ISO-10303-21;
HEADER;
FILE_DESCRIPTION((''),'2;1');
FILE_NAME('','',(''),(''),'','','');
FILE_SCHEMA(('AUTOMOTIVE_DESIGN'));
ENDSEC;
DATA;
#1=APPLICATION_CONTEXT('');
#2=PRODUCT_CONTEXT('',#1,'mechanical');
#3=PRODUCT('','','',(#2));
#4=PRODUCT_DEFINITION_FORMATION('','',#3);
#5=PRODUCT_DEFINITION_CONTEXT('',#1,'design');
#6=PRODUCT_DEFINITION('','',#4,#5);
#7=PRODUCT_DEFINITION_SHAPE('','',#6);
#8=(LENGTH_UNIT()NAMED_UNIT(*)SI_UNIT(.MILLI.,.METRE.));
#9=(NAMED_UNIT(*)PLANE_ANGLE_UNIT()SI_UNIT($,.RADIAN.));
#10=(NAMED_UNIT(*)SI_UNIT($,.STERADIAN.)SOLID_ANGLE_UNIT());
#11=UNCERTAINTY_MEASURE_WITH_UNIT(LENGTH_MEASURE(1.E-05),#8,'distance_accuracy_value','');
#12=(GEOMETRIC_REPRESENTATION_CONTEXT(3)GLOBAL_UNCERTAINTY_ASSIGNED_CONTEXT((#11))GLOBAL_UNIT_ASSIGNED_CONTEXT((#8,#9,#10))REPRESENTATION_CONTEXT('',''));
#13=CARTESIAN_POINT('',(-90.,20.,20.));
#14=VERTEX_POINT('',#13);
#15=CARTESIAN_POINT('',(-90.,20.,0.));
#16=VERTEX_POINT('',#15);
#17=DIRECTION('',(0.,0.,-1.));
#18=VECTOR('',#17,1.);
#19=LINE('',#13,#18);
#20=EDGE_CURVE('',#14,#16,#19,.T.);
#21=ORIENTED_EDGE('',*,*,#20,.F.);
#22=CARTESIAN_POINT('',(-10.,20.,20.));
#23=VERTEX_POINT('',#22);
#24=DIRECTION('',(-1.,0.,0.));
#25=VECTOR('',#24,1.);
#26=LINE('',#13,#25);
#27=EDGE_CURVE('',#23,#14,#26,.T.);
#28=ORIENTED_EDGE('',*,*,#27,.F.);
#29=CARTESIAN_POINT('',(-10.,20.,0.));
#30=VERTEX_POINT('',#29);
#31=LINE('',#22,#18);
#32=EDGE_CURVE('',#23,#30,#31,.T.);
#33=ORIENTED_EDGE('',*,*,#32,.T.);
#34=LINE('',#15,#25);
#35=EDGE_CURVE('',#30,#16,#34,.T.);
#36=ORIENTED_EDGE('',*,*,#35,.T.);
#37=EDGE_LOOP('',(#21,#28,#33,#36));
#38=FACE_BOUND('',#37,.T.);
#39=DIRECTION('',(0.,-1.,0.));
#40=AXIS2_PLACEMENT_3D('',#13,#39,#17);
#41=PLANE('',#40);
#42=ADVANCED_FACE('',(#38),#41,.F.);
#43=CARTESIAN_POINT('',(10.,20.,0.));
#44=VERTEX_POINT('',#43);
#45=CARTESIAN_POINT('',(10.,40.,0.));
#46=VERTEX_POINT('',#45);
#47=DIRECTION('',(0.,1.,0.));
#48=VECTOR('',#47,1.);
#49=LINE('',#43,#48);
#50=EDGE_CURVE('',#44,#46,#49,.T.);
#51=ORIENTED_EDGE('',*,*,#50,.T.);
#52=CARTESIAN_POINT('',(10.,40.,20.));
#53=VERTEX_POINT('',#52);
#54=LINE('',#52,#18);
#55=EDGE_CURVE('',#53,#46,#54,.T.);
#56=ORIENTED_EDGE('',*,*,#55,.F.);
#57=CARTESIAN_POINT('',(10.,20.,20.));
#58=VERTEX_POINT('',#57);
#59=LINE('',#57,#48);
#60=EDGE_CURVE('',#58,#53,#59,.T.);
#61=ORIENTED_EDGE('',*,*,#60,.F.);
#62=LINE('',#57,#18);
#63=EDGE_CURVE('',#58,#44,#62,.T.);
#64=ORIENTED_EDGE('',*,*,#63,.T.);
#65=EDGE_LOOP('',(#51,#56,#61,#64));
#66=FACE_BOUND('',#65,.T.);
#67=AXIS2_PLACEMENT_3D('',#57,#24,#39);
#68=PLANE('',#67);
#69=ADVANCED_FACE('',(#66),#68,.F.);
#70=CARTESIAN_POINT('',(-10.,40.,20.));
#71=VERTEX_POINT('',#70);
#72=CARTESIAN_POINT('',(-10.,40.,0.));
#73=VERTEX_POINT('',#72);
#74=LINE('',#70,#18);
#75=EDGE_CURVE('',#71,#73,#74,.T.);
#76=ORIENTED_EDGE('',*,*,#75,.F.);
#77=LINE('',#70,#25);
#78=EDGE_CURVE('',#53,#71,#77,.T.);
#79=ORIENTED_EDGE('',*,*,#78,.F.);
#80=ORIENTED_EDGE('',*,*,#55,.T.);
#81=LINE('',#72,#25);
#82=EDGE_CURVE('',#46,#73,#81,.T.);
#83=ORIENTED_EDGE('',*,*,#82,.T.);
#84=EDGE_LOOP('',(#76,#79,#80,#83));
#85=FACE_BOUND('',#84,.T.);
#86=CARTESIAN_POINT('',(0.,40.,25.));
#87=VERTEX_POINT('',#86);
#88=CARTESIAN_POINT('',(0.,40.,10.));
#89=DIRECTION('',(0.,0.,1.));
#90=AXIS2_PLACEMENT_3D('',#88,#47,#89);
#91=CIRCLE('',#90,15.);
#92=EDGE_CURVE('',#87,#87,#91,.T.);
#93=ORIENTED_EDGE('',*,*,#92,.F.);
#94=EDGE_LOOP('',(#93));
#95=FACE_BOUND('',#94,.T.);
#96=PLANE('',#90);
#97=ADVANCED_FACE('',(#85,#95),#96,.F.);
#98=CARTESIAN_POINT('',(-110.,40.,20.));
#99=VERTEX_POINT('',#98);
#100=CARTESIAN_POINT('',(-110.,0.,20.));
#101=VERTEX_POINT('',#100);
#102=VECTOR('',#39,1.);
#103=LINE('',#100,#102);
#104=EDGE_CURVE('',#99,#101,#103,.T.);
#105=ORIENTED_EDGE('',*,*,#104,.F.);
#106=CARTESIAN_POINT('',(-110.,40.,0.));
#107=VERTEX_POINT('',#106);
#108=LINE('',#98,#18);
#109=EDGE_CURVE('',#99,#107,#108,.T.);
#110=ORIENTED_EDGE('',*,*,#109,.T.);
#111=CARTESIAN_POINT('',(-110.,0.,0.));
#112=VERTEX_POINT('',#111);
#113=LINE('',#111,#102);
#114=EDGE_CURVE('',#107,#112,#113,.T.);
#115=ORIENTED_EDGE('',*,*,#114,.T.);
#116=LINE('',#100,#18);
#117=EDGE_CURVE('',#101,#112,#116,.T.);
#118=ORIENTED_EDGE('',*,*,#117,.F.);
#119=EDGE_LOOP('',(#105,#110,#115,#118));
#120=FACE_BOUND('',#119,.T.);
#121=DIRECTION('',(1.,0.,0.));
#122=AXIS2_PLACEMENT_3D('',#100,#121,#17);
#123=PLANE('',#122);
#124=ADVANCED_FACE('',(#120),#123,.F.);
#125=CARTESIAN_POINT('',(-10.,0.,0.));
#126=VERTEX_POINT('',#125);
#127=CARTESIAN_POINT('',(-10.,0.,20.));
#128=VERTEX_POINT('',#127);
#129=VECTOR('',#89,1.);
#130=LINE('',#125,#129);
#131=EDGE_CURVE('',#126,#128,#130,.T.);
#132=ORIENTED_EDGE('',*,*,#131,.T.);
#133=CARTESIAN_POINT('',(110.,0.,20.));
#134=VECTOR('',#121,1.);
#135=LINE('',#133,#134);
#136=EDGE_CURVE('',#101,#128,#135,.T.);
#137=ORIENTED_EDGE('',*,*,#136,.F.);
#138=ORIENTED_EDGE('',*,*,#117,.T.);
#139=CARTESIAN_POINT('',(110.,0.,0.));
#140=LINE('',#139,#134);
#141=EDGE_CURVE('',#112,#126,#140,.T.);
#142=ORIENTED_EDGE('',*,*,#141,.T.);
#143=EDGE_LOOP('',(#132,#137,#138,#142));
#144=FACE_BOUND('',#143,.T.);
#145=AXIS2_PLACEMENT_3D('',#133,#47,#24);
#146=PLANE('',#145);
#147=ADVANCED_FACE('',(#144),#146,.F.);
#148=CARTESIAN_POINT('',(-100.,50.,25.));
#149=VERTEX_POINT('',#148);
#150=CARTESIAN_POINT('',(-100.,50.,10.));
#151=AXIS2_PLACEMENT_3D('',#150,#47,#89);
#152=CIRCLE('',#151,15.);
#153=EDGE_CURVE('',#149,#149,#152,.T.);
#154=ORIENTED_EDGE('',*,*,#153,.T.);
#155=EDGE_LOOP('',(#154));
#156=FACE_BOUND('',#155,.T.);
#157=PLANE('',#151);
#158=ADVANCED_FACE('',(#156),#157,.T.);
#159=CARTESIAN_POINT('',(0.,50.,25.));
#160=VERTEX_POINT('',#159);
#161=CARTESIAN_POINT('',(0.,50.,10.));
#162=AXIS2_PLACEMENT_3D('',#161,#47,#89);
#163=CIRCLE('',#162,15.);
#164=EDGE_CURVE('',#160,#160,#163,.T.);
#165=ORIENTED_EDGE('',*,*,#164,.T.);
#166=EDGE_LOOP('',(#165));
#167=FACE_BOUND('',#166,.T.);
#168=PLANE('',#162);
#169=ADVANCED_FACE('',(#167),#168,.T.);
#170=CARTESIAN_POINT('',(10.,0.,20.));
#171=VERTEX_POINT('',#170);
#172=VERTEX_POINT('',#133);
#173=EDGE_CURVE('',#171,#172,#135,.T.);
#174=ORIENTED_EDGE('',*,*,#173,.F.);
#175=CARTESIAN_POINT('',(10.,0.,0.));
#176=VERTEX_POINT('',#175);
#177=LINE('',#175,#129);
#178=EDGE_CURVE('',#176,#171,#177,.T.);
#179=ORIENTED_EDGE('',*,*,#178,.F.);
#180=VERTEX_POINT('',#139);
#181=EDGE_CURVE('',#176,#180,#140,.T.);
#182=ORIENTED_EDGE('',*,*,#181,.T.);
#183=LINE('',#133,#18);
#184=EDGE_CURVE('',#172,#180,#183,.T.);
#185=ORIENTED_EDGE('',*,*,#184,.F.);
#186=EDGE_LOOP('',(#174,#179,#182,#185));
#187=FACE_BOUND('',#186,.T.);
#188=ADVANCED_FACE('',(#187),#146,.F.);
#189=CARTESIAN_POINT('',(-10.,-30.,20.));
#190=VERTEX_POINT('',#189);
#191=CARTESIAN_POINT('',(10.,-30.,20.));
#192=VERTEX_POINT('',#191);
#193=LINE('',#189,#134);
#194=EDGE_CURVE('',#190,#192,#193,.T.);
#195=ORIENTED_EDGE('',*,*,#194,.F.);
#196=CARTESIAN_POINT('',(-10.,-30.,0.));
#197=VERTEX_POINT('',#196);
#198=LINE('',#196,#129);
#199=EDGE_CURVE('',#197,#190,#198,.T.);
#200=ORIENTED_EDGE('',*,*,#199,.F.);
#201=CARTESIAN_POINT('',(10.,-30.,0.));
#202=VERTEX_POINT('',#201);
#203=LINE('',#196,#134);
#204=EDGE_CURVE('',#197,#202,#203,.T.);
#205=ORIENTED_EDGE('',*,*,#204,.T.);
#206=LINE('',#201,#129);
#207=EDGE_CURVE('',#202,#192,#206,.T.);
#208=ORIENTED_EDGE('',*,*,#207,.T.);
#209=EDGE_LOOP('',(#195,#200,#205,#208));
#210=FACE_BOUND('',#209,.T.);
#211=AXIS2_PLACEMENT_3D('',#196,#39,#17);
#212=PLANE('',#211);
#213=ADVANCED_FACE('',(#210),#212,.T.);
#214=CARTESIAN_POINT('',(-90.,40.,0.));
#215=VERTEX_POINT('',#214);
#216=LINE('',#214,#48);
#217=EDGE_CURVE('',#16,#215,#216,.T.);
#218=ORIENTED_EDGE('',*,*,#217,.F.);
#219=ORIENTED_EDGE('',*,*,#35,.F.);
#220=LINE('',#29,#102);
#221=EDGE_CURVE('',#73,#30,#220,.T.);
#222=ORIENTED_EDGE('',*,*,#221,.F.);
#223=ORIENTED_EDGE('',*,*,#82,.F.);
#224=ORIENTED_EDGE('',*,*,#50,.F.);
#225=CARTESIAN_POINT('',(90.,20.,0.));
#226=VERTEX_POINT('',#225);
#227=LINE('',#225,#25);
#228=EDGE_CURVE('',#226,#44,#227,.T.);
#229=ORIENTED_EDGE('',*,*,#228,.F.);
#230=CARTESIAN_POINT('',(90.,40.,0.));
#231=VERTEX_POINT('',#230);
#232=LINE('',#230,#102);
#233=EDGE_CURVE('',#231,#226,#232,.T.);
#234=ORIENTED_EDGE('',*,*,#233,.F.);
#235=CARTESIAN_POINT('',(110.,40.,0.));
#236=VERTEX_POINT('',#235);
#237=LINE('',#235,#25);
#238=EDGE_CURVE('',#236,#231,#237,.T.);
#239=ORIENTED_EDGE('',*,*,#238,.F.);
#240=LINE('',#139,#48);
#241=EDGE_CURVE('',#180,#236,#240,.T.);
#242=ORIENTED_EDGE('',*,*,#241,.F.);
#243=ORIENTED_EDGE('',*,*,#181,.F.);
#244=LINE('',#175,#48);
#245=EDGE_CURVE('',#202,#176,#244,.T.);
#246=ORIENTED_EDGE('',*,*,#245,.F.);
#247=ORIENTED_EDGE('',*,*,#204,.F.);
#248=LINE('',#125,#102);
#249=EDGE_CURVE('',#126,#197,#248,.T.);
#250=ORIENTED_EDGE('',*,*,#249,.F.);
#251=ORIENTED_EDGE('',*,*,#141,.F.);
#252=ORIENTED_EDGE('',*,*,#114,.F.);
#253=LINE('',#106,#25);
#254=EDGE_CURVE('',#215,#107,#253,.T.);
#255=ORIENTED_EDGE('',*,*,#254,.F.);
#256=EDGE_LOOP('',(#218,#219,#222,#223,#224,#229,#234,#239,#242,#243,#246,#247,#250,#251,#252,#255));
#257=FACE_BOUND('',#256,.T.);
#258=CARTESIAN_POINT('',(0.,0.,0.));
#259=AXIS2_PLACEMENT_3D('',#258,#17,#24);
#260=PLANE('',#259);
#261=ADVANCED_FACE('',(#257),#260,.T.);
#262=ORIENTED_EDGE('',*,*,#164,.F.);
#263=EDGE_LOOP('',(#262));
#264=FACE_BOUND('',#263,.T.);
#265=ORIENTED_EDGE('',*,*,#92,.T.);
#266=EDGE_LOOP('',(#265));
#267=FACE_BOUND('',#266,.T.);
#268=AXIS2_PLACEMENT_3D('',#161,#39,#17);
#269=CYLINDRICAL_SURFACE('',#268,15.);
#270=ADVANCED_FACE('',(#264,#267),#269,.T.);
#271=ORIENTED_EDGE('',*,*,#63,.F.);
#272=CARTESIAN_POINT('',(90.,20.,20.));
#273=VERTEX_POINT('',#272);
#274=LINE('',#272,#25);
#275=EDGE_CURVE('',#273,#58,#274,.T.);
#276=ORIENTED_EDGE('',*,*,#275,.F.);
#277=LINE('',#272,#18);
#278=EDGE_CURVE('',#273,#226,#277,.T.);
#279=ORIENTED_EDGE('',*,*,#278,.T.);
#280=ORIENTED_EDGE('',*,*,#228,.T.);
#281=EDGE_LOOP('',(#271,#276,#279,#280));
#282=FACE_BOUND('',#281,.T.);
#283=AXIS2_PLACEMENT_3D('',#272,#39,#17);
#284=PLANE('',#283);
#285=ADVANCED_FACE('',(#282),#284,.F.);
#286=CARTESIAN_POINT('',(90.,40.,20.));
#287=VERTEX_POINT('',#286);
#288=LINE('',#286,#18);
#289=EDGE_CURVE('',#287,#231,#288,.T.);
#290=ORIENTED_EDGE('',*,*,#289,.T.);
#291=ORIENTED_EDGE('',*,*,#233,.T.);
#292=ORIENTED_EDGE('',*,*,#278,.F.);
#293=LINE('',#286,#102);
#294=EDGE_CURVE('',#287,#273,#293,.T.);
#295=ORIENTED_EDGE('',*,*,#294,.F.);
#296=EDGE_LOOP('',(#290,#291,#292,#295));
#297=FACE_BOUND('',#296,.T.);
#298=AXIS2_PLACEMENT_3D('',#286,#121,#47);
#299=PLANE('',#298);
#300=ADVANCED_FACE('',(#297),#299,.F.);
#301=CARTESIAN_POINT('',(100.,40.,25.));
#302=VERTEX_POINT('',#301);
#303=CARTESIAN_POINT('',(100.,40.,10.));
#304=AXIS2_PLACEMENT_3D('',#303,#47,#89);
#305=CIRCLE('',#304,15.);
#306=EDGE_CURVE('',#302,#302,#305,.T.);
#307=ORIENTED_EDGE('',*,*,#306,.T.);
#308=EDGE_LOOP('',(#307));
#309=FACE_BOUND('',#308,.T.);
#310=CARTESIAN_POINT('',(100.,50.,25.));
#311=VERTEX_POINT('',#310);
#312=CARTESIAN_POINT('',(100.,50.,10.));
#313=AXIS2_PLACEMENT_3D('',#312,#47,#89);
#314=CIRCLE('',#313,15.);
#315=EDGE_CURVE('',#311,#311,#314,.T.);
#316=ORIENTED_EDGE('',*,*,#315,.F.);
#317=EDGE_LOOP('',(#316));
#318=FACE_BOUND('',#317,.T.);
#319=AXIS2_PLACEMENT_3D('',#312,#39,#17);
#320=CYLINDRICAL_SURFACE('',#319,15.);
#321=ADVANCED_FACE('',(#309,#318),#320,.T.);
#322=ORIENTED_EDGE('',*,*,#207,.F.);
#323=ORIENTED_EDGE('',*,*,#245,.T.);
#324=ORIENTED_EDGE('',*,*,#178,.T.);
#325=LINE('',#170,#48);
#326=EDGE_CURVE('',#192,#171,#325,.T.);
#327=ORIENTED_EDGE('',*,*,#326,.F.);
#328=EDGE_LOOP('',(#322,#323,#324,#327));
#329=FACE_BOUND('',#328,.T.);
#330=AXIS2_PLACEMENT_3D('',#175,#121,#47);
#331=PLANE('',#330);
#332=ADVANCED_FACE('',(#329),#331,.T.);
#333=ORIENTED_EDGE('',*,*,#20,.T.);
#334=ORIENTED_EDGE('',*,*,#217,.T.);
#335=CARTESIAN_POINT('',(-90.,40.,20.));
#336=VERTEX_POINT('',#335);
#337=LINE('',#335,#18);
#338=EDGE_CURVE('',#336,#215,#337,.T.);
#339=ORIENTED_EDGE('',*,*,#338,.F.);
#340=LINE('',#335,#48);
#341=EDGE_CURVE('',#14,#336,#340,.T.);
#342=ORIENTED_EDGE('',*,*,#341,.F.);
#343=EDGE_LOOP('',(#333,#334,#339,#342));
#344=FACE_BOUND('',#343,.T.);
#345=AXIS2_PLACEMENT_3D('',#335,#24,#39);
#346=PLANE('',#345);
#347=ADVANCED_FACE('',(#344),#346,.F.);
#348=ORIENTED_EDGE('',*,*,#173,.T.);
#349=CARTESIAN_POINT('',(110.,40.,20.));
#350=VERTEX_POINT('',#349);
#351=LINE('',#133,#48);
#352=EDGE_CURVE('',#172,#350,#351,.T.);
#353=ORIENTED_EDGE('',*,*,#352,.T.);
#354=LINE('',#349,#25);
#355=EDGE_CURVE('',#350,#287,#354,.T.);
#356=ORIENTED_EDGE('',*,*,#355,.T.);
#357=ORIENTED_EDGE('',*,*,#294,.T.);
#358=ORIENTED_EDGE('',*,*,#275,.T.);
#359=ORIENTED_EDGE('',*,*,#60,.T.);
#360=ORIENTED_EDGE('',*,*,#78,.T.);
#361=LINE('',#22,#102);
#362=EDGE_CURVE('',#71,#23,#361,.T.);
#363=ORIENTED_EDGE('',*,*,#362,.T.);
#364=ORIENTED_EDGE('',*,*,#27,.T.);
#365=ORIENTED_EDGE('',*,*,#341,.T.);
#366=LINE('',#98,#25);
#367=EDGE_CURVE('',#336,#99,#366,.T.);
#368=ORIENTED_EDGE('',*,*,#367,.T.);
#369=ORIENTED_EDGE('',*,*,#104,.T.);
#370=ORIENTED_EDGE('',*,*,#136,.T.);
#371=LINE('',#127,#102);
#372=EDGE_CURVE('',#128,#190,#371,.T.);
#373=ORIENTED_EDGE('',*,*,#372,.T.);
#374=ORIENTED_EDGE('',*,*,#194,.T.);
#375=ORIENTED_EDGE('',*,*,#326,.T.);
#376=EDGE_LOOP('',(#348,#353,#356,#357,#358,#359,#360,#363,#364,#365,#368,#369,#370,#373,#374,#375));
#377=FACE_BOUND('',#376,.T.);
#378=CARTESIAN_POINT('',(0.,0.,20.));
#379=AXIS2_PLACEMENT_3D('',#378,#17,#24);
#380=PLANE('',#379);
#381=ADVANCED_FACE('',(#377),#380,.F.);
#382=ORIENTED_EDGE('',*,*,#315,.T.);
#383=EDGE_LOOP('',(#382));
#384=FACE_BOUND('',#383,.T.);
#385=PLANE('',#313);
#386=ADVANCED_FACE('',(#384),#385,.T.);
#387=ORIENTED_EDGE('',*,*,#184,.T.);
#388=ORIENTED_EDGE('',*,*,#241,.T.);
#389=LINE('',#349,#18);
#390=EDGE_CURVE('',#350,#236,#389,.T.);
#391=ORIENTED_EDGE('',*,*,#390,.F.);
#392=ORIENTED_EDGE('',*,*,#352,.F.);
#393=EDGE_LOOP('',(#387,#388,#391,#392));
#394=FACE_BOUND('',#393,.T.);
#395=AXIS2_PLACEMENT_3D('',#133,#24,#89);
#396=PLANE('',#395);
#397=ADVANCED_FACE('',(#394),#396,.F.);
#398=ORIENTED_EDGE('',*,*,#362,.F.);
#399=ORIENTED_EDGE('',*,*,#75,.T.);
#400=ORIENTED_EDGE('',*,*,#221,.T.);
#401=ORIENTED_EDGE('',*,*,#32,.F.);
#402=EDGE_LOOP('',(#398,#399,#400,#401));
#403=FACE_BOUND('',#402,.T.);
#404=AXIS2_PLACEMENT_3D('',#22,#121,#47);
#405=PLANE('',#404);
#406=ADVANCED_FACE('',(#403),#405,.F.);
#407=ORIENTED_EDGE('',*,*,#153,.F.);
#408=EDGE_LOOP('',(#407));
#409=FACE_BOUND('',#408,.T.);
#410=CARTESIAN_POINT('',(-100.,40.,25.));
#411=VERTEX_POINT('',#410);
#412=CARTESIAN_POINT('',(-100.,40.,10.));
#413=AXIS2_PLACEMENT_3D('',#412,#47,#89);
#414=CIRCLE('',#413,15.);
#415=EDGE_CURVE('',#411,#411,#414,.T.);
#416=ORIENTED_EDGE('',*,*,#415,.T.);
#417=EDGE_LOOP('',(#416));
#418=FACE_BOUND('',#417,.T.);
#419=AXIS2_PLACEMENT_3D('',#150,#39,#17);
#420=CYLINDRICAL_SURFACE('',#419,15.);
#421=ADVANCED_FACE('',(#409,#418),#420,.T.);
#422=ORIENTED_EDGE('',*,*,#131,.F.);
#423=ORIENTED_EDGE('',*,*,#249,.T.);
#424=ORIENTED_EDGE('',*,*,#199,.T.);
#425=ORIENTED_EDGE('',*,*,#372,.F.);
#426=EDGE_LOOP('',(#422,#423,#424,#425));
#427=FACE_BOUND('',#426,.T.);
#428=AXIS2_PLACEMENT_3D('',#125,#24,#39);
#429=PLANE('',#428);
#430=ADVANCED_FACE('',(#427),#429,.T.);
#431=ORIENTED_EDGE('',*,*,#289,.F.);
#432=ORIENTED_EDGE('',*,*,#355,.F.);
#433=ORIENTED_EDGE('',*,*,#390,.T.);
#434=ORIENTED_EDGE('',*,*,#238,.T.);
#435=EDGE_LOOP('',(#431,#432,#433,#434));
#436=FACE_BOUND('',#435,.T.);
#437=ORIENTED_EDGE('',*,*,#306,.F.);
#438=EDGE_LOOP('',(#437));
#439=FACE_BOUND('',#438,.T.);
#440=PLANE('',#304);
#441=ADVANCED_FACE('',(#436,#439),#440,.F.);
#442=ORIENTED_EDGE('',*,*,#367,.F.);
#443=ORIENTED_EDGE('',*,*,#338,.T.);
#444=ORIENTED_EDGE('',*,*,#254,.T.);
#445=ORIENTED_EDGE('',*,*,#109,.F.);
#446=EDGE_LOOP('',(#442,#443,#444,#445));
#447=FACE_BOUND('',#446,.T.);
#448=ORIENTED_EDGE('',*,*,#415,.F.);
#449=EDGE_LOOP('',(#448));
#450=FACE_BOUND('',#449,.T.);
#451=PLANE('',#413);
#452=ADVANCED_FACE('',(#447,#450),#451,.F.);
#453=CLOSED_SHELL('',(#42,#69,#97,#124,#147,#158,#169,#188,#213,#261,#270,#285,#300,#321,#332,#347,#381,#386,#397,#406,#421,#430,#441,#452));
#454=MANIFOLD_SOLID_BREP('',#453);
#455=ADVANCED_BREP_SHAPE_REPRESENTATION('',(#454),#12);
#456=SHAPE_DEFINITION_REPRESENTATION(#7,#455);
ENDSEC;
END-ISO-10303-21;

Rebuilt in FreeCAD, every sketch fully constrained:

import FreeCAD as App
import Part
import Sketcher
from FreeCAD import Vector
Q = App.Units.Quantity

doc = App.newDocument("Part")
body = doc.addObject("PartDesign::Body", "Body")

sketch1 = body.newObject("Sketcher::SketchObject", "Sketch")
sketch1.AttachmentSupport = (doc.getObject("XY_Plane"), [""])
sketch1.MapMode = "FlatFace"
sketch1.addGeometry([
    Part.LineSegment(Vector(-110, 0, 0), Vector(110, 0, 0)),
    Part.LineSegment(Vector(110, 0, 0), Vector(110, 40, 0)),
    Part.LineSegment(Vector(110, 40, 0), Vector(90, 40, 0)),
    Part.LineSegment(Vector(90, 40, 0), Vector(90, 20, 0)),
    Part.LineSegment(Vector(90, 20, 0), Vector(10, 20, 0)),
    Part.LineSegment(Vector(10, 20, 0), Vector(10, 40, 0)),
    Part.LineSegment(Vector(10, 40, 0), Vector(-10, 40, 0)),
    Part.LineSegment(Vector(-10, 40, 0), Vector(-10, 20, 0)),
    Part.LineSegment(Vector(-10, 20, 0), Vector(-90, 20, 0)),
    Part.LineSegment(Vector(-90, 20, 0), Vector(-90, 40, 0)),
    Part.LineSegment(Vector(-90, 40, 0), Vector(-110, 40, 0)),
    Part.LineSegment(Vector(-110, 40, 0), Vector(-110, 0, 0)),
], False)
sketch1.addConstraint([
    Sketcher.Constraint("Coincident", 0, 2, 1, 1),
    Sketcher.Constraint("Coincident", 1, 2, 2, 1),
    Sketcher.Constraint("Coincident", 2, 2, 3, 1),
    Sketcher.Constraint("Coincident", 3, 2, 4, 1),
    Sketcher.Constraint("Coincident", 4, 2, 5, 1),
    Sketcher.Constraint("Coincident", 5, 2, 6, 1),
    Sketcher.Constraint("Coincident", 6, 2, 7, 1),
    Sketcher.Constraint("Coincident", 7, 2, 8, 1),
    Sketcher.Constraint("Coincident", 8, 2, 9, 1),
    Sketcher.Constraint("Coincident", 9, 2, 10, 1),
    Sketcher.Constraint("Coincident", 10, 2, 11, 1),
    Sketcher.Constraint("Coincident", 11, 2, 0, 1),
    Sketcher.Constraint("Horizontal", 0),
    Sketcher.Constraint("Vertical", 1),
    Sketcher.Constraint("Horizontal", 2),
    Sketcher.Constraint("Vertical", 3),
    Sketcher.Constraint("Horizontal", 4),
    Sketcher.Constraint("Vertical", 5),
    Sketcher.Constraint("Horizontal", 6),
    Sketcher.Constraint("Vertical", 7),
    Sketcher.Constraint("Horizontal", 8),
    Sketcher.Constraint("Vertical", 9),
    Sketcher.Constraint("Horizontal", 10),
    Sketcher.Constraint("Vertical", 11),
    Sketcher.Constraint("Symmetric", 0, 2, 11, 2, -1, 1),
    Sketcher.Constraint("Symmetric", 4, 2, 7, 2, -2),
    Sketcher.Constraint("Symmetric", 2, 2, 9, 2, -2),
    Sketcher.Constraint("Horizontal", 2, 2, 5, 2),
    Sketcher.Constraint("Equal", 2, 6),
    Sketcher.Constraint("Equal", 10, 3),
    Sketcher.Constraint("DistanceX", 0, 1, 0, 2, Q("220 mm")),
    Sketcher.Constraint("DistanceX", 2, 2, 2, 1, Q("20 mm")),
    Sketcher.Constraint("DistanceY", 1, 1, 1, 2, Q("40 mm")),
])
pad1 = body.newObject("PartDesign::Pad", "Pad")
pad1.Profile = sketch1
pad1.Length = 20

sketch2 = body.newObject("Sketcher::SketchObject", "Sketch001")
sketch2.AttachmentSupport = (doc.getObject("XY_Plane"), [""])
sketch2.MapMode = "FlatFace"
sketch2.AttachmentOffset = App.Placement(Vector(0, 0, 20), App.Rotation())
sketch2.addGeometry([
    Part.LineSegment(Vector(-10, 0, 0), Vector(-10, -30, 0)),
    Part.LineSegment(Vector(-10, -30, 0), Vector(10, -30, 0)),
    Part.LineSegment(Vector(10, -30, 0), Vector(10, 0, 0)),
    Part.LineSegment(Vector(10, 0, 0), Vector(-10, 0, 0)),
], False)
sketch2.addConstraint([
    Sketcher.Constraint("Coincident", 0, 2, 1, 1),
    Sketcher.Constraint("Coincident", 1, 2, 2, 1),
    Sketcher.Constraint("Coincident", 2, 2, 3, 1),
    Sketcher.Constraint("Coincident", 3, 2, 0, 1),
    Sketcher.Constraint("Vertical", 0),
    Sketcher.Constraint("Horizontal", 1),
    Sketcher.Constraint("Vertical", 2),
    Sketcher.Constraint("Horizontal", 3),
    Sketcher.Constraint("Symmetric", 2, 2, 3, 2, -1, 1),
    Sketcher.Constraint("DistanceX", 1, 1, 1, 2, Q("20 mm")),
    Sketcher.Constraint("DistanceY", 0, 2, 0, 1, Q("30 mm")),
])
pad2 = body.newObject("PartDesign::Pad", "Pad001")
pad2.Profile = sketch2
pad2.Length = 20
pad2.Reversed = True

sketch3 = body.newObject("Sketcher::SketchObject", "Sketch002")
sketch3.AttachmentSupport = (doc.getObject("XZ_Plane"), [""])
sketch3.MapMode = "FlatFace"
sketch3.AttachmentOffset = App.Placement(Vector(0, 0, -40), App.Rotation())
sketch3.addGeometry([
    Part.Circle(Vector(0, 10, 0), Vector(0, 0, 1), 15),
    Part.Circle(Vector(-100, 10, 0), Vector(0, 0, 1), 15),
    Part.Circle(Vector(100, 10, 0), Vector(0, 0, 1), 15),
], False)
sketch3.addConstraint([
    Sketcher.Constraint("Equal", 0, 1),
    Sketcher.Constraint("Equal", 1, 2),
    Sketcher.Constraint("Symmetric", 1, 3, 2, 3, -2),
    Sketcher.Constraint("PointOnObject", 0, 3, -2),
    Sketcher.Constraint("Horizontal", 0, 3, 1, 3),
    Sketcher.Constraint("Diameter", 0, Q("30 mm")),
    Sketcher.Constraint("DistanceY", -1, 1, 0, 3, Q("10 mm")),
    Sketcher.Constraint("DistanceX", 1, 3, -1, 1, Q("100 mm")),
])
pad3 = body.newObject("PartDesign::Pad", "Pad002")
pad3.Profile = sketch3
pad3.Length = 10
pad3.Reversed = True

doc.recompute()
